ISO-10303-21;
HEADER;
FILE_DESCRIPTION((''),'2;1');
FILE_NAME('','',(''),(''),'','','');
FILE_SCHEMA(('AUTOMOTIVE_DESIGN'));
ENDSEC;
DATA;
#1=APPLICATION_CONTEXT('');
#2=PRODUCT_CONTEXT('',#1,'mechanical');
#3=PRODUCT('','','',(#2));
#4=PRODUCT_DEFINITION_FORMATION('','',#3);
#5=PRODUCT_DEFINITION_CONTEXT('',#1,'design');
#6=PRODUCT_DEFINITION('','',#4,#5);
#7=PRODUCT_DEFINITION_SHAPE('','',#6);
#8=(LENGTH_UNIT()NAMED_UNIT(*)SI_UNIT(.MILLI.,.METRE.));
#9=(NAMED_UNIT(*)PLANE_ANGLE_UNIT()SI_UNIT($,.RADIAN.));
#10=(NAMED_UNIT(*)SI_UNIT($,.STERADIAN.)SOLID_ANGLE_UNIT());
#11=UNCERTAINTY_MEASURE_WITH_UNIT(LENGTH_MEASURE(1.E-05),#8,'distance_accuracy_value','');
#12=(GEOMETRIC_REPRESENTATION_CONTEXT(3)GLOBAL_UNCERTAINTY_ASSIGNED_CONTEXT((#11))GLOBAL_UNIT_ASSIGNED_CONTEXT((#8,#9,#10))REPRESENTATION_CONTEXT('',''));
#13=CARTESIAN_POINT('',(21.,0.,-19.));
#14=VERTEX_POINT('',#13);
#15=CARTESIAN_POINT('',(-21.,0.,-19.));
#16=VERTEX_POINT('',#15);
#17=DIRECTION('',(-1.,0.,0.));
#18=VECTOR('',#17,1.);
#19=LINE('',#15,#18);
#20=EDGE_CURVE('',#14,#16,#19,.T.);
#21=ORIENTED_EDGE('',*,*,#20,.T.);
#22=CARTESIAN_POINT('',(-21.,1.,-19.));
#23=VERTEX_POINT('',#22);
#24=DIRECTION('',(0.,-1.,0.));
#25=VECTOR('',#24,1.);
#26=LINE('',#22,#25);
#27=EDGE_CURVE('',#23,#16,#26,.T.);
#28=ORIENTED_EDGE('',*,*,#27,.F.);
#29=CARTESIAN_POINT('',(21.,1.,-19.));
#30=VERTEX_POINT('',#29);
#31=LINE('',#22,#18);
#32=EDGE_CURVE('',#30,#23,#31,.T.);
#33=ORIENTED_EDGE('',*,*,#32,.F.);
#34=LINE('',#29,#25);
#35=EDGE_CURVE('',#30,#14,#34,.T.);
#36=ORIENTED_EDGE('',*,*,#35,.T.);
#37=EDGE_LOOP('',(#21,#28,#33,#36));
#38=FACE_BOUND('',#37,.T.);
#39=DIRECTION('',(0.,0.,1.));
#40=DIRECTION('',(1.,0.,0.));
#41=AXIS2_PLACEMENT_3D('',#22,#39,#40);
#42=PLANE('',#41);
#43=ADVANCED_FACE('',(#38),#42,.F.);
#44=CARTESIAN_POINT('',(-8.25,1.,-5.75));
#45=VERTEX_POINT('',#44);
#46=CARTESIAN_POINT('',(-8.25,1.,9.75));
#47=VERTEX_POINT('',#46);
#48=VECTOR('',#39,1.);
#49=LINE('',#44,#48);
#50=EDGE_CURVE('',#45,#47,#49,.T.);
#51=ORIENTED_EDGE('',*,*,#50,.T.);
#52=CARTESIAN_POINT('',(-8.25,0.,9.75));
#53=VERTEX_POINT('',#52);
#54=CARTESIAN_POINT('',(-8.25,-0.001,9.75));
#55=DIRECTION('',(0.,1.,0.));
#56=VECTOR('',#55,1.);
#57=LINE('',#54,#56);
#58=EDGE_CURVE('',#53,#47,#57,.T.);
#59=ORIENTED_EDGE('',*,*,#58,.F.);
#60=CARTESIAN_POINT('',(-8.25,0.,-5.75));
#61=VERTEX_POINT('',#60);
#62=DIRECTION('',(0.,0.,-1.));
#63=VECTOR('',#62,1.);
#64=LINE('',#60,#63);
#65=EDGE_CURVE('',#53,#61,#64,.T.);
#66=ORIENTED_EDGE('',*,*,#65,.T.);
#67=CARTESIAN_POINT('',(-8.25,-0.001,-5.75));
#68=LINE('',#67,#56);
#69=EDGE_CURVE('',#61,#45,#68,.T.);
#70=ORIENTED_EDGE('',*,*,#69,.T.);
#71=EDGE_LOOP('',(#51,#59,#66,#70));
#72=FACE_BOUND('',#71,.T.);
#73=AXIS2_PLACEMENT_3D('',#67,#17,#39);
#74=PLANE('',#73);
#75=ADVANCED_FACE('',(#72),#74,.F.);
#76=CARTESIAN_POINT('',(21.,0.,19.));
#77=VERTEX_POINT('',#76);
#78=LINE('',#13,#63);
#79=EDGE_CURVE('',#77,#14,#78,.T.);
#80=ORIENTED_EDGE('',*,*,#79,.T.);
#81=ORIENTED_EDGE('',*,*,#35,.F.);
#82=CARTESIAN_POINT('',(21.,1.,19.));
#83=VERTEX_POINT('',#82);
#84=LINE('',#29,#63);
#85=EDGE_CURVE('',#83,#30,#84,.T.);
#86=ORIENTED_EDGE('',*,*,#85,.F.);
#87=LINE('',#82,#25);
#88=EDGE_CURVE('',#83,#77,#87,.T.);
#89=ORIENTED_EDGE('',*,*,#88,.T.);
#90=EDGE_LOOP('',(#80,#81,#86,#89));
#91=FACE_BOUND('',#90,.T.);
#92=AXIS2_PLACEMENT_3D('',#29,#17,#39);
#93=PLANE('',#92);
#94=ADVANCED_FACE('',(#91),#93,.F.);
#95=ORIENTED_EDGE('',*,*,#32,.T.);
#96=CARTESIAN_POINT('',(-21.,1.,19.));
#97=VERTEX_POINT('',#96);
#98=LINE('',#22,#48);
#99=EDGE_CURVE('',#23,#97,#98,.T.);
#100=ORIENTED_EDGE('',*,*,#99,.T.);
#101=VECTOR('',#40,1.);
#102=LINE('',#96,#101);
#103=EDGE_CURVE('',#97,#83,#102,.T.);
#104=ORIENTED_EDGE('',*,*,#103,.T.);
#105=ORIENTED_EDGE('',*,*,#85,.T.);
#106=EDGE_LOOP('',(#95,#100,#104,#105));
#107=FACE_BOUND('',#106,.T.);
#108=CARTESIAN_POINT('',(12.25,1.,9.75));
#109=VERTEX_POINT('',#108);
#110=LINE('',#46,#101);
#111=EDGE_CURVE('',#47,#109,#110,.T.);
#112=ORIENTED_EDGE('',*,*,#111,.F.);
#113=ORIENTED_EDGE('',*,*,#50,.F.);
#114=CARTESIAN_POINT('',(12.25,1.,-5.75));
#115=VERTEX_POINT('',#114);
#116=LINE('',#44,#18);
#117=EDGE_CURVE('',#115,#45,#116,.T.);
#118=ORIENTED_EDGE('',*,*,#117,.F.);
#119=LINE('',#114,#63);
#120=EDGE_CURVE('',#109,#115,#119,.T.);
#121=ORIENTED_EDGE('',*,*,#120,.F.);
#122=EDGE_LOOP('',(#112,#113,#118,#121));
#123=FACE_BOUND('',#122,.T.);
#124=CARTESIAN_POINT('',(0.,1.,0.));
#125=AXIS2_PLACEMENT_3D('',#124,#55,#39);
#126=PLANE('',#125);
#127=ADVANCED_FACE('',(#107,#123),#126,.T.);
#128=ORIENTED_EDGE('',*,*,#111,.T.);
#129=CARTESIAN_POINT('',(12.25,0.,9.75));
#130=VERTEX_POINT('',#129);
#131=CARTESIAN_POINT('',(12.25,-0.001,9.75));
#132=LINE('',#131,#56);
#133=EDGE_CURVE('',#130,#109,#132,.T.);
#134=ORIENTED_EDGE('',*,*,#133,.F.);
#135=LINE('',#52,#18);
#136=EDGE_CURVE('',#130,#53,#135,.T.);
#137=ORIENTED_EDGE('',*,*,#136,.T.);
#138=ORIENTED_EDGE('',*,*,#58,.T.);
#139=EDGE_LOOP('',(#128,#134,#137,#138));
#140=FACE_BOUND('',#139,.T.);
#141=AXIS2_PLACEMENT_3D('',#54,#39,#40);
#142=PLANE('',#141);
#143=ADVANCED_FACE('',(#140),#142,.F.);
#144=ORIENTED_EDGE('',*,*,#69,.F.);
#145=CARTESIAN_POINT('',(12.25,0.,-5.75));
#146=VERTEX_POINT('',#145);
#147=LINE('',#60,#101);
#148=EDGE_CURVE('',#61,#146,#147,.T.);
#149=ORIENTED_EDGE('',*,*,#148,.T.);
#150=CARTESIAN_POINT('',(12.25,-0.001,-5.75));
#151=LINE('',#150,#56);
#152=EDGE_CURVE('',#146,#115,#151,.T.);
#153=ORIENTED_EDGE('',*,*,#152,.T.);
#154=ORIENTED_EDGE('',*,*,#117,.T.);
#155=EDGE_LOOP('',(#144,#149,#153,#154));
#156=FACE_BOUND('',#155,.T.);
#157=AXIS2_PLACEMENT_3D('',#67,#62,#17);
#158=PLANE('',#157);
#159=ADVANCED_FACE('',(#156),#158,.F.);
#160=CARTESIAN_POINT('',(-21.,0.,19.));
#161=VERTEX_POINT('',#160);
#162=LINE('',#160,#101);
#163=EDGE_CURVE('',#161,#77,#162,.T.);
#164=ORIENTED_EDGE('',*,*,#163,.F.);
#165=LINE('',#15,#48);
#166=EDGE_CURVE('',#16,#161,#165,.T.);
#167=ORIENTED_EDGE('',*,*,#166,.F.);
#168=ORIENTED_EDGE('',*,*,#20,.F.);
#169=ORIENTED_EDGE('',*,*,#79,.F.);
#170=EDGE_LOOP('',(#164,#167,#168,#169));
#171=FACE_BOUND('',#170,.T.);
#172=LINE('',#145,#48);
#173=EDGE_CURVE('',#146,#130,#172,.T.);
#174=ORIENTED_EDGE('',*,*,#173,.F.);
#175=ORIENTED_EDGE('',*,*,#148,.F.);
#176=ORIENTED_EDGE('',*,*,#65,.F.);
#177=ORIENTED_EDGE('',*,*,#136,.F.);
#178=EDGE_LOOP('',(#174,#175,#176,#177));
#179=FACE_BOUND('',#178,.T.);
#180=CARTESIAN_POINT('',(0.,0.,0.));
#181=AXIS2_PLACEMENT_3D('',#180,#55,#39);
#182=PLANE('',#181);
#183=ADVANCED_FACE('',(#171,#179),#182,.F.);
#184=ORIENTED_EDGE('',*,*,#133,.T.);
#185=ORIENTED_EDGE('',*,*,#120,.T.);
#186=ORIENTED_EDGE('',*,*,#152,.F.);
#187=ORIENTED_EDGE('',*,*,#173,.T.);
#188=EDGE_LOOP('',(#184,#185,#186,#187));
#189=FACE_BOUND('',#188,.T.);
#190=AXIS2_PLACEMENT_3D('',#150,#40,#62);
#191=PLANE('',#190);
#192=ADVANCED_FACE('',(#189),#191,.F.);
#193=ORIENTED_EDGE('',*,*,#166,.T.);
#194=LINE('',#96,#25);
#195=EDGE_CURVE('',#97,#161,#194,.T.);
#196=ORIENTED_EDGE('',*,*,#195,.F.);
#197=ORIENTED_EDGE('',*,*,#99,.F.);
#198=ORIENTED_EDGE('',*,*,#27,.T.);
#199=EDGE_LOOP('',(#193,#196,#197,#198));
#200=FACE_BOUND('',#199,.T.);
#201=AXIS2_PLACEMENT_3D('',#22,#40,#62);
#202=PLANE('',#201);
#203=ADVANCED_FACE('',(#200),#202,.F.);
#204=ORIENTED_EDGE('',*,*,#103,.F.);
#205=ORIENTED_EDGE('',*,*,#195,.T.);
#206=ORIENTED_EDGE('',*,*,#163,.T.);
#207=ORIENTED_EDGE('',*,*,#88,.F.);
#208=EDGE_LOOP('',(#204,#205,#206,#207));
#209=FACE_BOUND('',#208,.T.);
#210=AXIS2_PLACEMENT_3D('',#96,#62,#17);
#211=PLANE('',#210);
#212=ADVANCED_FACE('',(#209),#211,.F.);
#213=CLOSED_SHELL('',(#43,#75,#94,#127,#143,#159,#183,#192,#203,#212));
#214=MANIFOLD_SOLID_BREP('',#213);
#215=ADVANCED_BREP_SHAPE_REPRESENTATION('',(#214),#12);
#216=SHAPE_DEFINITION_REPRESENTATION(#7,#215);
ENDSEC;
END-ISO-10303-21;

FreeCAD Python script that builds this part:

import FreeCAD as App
import Part
import Sketcher

V = App.Vector

doc = App.newDocument("Part")
params = doc.addObject("Spreadsheet::Sheet", "Params")
for row, (alias, value) in enumerate([
    ("sketch1_width", "42 mm"),
    ("sketch1_height", "38 mm"),
    ("pad1_length", "1 mm"),
    ("sketch2_width", "20.5 mm"),
    ("sketch2_height", "15.5 mm"),
], start=1):
    params.set(f"A{row}", alias)
    params.set(f"B{row}", "=" + value)
    params.setAlias(f"B{row}", alias)

body = doc.addObject("PartDesign::Body", "Body")

sketch1 = body.newObject("Sketcher::SketchObject", "Sketch")
sketch1.AttachmentSupport = (doc.getObject("XZ_Plane"), [""])
sketch1.MapMode = "FlatFace"
sketch1.addGeometry(Part.LineSegment(V(-21, -19, 0), V(-21, 19, 0)), False)
sketch1.addGeometry(Part.LineSegment(V(-21, 19, 0), V(21, 19, 0)), False)
sketch1.addGeometry(Part.LineSegment(V(21, 19, 0), V(21, -19, 0)), False)
sketch1.addGeometry(Part.LineSegment(V(21, -19, 0), V(-21, -19, 0)), False)
sketch1.addConstraint(Sketcher.Constraint("Coincident", 0, 2, 1, 1))
sketch1.addConstraint(Sketcher.Constraint("Coincident", 1, 2, 2, 1))
sketch1.addConstraint(Sketcher.Constraint("Coincident", 2, 2, 3, 1))
sketch1.addConstraint(Sketcher.Constraint("Coincident", 3, 2, 0, 1))
sketch1.addConstraint(Sketcher.Constraint("Vertical", 0))
sketch1.addConstraint(Sketcher.Constraint("Horizontal", 1))
sketch1.addConstraint(Sketcher.Constraint("Vertical", 2))
sketch1.addConstraint(Sketcher.Constraint("Horizontal", 3))
sketch1.addConstraint(Sketcher.Constraint("Symmetric", 0, 2, 2, 2, -1, 1))
sketch1.addConstraint(Sketcher.Constraint("DistanceX", 1, 1, 1, 2, 42.0))
sketch1.addConstraint(Sketcher.Constraint("DistanceY", 0, 1, 0, 2, 38.0))
sketch1.setExpression("Constraints[9]", "Params.sketch1_width")
sketch1.setExpression("Constraints[10]", "Params.sketch1_height")
pad1 = body.newObject("PartDesign::Pad", "Pad")
pad1.Profile = sketch1
pad1.setExpression("Length", "Params.pad1_length")
pad1.Reversed = True

sketch2 = body.newObject("Sketcher::SketchObject", "Sketch001")
sketch2.AttachmentSupport = (doc.getObject("XZ_Plane"), [""])
sketch2.MapMode = "FlatFace"
sketch2.AttachmentOffset = App.Placement(V(0, 0, -1), App.Rotation())
sketch2.addGeometry(Part.LineSegment(V(-8, -6, 0), V(-8, 10, 0)), False)
sketch2.addGeometry(Part.LineSegment(V(-8, 10, 0), V(12, 10, 0)), False)
sketch2.addGeometry(Part.LineSegment(V(12, 10, 0), V(12, -6, 0)), False)
sketch2.addGeometry(Part.LineSegment(V(12, -6, 0), V(-8, -6, 0)), False)
sketch2.addConstraint(Sketcher.Constraint("Coincident", 0, 2, 1, 1))
sketch2.addConstraint(Sketcher.Constraint("Coincident", 1, 2, 2, 1))
sketch2.addConstraint(Sketcher.Constraint("Coincident", 2, 2, 3, 1))
sketch2.addConstraint(Sketcher.Constraint("Coincident", 3, 2, 0, 1))
sketch2.addConstraint(Sketcher.Constraint("Vertical", 0))
sketch2.addConstraint(Sketcher.Constraint("Horizontal", 1))
sketch2.addConstraint(Sketcher.Constraint("Vertical", 2))
sketch2.addConstraint(Sketcher.Constraint("Horizontal", 3))
sketch2.addConstraint(Sketcher.Constraint("DistanceX", 1, 1, 1, 2, 20.5))
sketch2.addConstraint(Sketcher.Constraint("DistanceY", 0, 1, 0, 2, 15.5))
sketch2.addConstraint(Sketcher.Constraint("DistanceX", 0, 2, -1, 1, 8.25))
sketch2.addConstraint(Sketcher.Constraint("DistanceY", -1, 1, 0, 2, 9.75))
sketch2.setExpression("Constraints[8]", "Params.sketch2_width")
sketch2.setExpression("Constraints[9]", "Params.sketch2_height")
pocket1 = body.newObject("PartDesign::Pocket", "Pocket")
pocket1.Profile = sketch2
pocket1.Type = "UpToFirst"
pocket1.Reversed = True

doc.recompute()
